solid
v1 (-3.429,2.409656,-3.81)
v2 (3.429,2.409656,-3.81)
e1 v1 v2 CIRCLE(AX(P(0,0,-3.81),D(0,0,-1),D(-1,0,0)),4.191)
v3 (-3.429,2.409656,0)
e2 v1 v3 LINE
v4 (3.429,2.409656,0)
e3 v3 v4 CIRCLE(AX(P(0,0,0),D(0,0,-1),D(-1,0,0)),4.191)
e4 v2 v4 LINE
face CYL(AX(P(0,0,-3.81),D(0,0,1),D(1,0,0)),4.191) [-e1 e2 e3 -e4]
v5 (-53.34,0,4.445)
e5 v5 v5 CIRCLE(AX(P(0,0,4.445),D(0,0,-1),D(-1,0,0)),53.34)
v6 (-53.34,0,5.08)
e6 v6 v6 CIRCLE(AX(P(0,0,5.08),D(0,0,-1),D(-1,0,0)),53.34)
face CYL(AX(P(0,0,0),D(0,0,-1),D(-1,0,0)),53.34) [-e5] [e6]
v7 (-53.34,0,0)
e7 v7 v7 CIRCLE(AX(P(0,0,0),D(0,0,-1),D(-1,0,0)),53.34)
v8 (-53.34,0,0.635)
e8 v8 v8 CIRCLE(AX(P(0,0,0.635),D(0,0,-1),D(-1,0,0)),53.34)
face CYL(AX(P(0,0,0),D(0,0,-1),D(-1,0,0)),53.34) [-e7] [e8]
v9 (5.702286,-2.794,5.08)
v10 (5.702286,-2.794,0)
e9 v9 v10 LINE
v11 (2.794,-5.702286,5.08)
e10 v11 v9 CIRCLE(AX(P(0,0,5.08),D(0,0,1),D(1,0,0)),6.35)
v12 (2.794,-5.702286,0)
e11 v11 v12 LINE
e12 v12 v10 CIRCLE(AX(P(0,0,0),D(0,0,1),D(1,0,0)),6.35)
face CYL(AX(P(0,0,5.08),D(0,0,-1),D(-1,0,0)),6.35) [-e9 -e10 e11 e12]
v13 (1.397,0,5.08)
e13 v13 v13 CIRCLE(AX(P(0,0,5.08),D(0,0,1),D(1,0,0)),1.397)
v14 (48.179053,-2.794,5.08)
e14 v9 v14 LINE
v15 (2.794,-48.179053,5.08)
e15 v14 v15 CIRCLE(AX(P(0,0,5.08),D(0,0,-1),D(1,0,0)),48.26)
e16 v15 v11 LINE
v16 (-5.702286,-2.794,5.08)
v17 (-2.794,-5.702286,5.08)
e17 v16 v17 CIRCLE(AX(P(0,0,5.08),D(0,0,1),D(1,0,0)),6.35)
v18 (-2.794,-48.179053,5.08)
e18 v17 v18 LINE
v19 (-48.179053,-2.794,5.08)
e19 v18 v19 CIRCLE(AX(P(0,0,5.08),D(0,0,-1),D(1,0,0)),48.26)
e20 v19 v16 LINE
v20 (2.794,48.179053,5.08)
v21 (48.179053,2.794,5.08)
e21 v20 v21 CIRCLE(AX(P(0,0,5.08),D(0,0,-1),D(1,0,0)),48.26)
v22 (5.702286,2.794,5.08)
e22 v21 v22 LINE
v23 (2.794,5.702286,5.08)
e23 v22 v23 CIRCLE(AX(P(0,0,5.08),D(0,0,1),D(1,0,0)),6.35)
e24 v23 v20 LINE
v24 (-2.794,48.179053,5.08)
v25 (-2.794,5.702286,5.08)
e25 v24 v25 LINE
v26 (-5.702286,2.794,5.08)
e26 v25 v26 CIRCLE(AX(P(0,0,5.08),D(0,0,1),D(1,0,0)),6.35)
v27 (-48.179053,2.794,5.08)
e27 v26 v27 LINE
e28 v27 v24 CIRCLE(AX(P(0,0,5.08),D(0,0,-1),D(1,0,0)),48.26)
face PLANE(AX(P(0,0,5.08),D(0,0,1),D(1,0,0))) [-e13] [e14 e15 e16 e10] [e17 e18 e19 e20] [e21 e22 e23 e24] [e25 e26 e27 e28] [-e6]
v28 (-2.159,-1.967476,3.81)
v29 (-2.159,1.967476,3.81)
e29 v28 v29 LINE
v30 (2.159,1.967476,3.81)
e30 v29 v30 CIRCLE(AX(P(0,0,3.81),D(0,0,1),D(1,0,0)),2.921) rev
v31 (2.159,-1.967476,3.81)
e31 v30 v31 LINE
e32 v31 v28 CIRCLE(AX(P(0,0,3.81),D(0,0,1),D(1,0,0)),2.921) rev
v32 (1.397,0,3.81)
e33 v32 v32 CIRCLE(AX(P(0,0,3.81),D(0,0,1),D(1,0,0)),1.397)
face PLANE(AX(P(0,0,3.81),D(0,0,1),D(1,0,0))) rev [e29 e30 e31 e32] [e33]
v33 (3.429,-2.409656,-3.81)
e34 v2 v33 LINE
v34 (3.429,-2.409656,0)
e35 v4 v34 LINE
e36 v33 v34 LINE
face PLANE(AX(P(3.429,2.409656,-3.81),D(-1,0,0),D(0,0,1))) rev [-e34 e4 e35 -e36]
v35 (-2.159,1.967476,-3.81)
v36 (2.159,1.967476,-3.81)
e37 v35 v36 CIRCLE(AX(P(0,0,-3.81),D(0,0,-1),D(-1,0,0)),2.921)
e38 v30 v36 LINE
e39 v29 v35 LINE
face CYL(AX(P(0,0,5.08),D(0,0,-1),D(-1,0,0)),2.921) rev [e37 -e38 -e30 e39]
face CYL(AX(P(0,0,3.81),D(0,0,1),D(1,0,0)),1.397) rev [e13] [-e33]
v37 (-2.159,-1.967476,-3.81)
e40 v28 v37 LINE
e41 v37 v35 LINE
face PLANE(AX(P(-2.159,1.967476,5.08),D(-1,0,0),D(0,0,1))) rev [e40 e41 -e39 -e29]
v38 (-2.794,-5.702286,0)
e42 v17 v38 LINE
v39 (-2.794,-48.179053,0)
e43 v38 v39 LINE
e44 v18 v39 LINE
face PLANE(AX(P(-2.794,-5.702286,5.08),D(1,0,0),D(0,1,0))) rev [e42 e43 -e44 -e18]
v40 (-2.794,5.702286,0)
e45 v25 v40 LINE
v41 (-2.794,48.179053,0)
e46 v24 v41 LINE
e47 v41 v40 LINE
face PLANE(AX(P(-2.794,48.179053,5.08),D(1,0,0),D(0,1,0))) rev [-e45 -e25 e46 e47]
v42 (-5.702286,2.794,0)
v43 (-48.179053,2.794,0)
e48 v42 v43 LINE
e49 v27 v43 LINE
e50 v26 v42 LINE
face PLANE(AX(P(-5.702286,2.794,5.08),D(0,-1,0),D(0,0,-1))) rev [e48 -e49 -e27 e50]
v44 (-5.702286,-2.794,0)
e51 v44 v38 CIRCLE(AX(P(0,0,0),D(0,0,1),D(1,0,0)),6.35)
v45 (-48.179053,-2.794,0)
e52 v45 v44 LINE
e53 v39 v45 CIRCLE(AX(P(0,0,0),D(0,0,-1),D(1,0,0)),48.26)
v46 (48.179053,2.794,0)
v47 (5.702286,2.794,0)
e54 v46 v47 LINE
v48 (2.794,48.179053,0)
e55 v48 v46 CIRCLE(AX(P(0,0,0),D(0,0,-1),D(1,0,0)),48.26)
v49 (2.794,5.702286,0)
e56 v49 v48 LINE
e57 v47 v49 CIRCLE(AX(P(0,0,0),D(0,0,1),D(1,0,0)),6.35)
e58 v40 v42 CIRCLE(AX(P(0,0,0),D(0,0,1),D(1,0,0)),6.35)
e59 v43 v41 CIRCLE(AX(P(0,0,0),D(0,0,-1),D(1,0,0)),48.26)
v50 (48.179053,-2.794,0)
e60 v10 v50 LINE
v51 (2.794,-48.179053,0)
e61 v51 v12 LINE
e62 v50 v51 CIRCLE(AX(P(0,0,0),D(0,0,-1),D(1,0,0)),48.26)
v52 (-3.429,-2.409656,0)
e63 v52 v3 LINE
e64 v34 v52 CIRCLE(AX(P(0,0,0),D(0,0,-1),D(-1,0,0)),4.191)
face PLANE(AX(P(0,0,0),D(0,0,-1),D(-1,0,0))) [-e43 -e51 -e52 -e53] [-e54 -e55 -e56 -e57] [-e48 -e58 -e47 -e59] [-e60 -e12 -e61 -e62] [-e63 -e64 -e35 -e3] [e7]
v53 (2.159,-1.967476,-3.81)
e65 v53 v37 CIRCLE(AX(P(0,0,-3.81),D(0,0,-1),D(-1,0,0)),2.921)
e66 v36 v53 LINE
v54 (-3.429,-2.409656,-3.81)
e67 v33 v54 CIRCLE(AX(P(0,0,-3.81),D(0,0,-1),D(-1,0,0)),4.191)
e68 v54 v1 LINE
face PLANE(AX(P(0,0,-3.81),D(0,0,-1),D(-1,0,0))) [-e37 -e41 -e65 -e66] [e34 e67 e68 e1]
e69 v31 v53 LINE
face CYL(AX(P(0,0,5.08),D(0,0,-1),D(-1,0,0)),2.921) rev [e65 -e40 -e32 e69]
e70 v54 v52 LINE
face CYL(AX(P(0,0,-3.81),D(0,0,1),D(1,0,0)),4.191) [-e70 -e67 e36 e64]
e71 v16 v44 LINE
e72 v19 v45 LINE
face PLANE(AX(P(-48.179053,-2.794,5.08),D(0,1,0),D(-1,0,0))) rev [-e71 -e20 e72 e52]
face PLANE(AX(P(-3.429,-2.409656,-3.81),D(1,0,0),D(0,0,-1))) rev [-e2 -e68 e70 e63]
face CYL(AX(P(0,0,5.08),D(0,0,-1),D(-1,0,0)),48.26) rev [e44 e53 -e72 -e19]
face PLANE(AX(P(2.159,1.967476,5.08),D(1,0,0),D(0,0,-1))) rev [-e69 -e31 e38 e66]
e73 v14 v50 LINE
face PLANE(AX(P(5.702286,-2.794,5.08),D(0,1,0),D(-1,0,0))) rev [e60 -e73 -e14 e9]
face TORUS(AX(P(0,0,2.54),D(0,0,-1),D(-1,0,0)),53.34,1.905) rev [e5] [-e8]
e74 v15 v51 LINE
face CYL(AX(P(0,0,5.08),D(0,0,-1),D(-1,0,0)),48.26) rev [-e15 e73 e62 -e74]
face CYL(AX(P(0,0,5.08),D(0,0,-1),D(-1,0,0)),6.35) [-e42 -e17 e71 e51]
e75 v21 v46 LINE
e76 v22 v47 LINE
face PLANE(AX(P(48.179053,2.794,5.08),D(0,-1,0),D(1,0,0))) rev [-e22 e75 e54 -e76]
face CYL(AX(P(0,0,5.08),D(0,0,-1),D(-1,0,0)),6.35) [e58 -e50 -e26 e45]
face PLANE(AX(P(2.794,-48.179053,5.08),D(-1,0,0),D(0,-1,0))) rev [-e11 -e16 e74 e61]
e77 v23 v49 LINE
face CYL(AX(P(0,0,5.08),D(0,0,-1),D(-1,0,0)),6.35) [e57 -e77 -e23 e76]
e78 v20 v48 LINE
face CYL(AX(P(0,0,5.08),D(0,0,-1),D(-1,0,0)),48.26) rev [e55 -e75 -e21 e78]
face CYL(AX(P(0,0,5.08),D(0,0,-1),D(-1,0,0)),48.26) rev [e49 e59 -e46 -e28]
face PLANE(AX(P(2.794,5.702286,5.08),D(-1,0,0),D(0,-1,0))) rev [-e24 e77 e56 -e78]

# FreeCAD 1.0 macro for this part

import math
import FreeCAD as App
import Part
import Sketcher
from FreeCAD import Vector
Q = App.Units.Quantity

doc = App.newDocument("Part")
params = doc.addObject("Spreadsheet::Sheet", "Params")
for row, (alias, value) in enumerate([
    ("sketch1_width", "2.1 in"),
    ("sketch1_height", "0.2 in"),
    ("sketch1_radius", "0.075 in"),
    ("revolution_angle", "360 deg"),
    ("sketch2_radius", "1.9 in"),
    ("sketch2_radius2", "0.25 in"),
    ("sketch3_radius", "0.115 in"),
    ("sketch4_radius", "0.165 in"),
    ("sketch4_radius2", "0.115 in"),
    ("pad1_length", "0.15 in"),
    ("sketch5_diameter", "0.3 in"),
    ("sketch5_diameter2", "0.11 in"),
    ("pad2_length", "0.05 in"),
], start=1):
    params.set(f"A{row}", alias)
    params.set(f"B{row}", "=" + value)
    params.setAlias(f"B{row}", alias)

body = doc.addObject("PartDesign::Body", "Body")

# Sketch on XZ plane
sketch1 = doc.addObject("Sketcher::SketchObject", "Sketch")
body.addObject(sketch1)
sketch1.AttachmentSupport = (doc.XZ_Plane, [""])
sketch1.MapMode = "FlatFace"
sketch1.addGeometry([
    Part.LineSegment(Vector(-53.3, 0, 0), Vector(-53.3, 0.6, 0)),  # 0
    Part.ArcOfCircle(Part.Circle(Vector(-53.3, 2.5, 0), Vector(0, 0, 1), 1.9), math.radians(-90), math.radians(90)),  # 1
    Part.LineSegment(Vector(-53.3, 4.4, 0), Vector(-53.3, 5.1, 0)),  # 2
    Part.LineSegment(Vector(-53.3, 5.1, 0), Vector(0, 5.1, 0)),  # 3
    Part.LineSegment(Vector(0, 5.1, 0), Vector(0, 0, 0)),  # 4
    Part.LineSegment(Vector(0, 0, 0), Vector(-53.3, 0, 0)),  # 5
], False)
sketch1.addConstraint([
    Sketcher.Constraint("Coincident", 0, 2, 1, 1),
    Sketcher.Constraint("Coincident", 1, 2, 2, 1),
    Sketcher.Constraint("Coincident", 2, 2, 3, 1),
    Sketcher.Constraint("Coincident", 3, 2, 4, 1),
    Sketcher.Constraint("Coincident", 4, 2, 5, 1),
    Sketcher.Constraint("Coincident", 5, 2, 0, 1),
    Sketcher.Constraint("Vertical", 0),
    Sketcher.Constraint("Vertical", 2),
    Sketcher.Constraint("Horizontal", 3),
    Sketcher.Constraint("Vertical", 4),
    Sketcher.Constraint("Horizontal", 5),
    Sketcher.Constraint("Coincident", 4, 2, -1, 1),
    Sketcher.Constraint("Vertical", 1, 3, 0, 2),
    Sketcher.Constraint("Vertical", 0, 2, 1, 2),
    Sketcher.Constraint("Equal", 0, 2),
    Sketcher.Constraint("DistanceX", 3, 1, 3, 2, Q("2.1 in")),
    Sketcher.Constraint("DistanceY", 4, 2, 4, 1, Q("0.2 in")),
    Sketcher.Constraint("Radius", 1, Q("0.075 in")),
])
sketch1.setExpression("Constraints[15]", "Params.sketch1_width")
sketch1.setExpression("Constraints[16]", "Params.sketch1_height")
sketch1.setExpression("Constraints[17]", "Params.sketch1_radius")
revolution = doc.addObject("PartDesign::Revolution", "Revolution")
body.addObject(revolution)
revolution.Profile = sketch1
revolution.ReferenceAxis = (sketch1, ["V_Axis"])
revolution.setExpression("Angle", "Params.revolution_angle")

# Sketch on XY plane
sketch2 = doc.addObject("Sketcher::SketchObject", "Sketch001")
body.addObject(sketch2)
sketch2.AttachmentSupport = (doc.XY_Plane, [""])
sketch2.MapMode = "FlatFace"
sketch2.addGeometry([
    Part.LineSegment(Vector(-2.8, 48.2, 0), Vector(-2.8, 5.7, 0)),  # 0
    Part.ArcOfCircle(Part.Circle(Vector(0, 0, 0), Vector(0, 0, 1), 6.3), math.radians(116), math.radians(154)),  # 1
    Part.LineSegment(Vector(-5.7, 2.8, 0), Vector(-48.2, 2.8, 0)),  # 2
    Part.ArcOfCircle(Part.Circle(Vector(0, 0, 0), Vector(0, 0, 1), 48.3), math.radians(93), math.radians(177)),  # 3
    Part.LineSegment(Vector(-2.8, -5.7, 0), Vector(-2.8, -48.2, 0)),  # 4
    Part.ArcOfCircle(Part.Circle(Vector(0, 0, 0), Vector(0, 0, 1), 48.3), math.radians(-177), math.radians(-93)),  # 5
    Part.LineSegment(Vector(-48.2, -2.8, 0), Vector(-5.7, -2.8, 0)),  # 6
    Part.ArcOfCircle(Part.Circle(Vector(0, 0, 0), Vector(0, 0, 1), 6.3), math.radians(-154), math.radians(-116)),  # 7
    Part.LineSegment(Vector(5.7, -2.8, 0), Vector(48.2, -2.8, 0)),  # 8
    Part.ArcOfCircle(Part.Circle(Vector(0, 0, 0), Vector(0, 0, 1), 48.3), math.radians(-87), math.radians(-3)),  # 9
    Part.LineSegment(Vector(2.8, -48.2, 0), Vector(2.8, -5.7, 0)),  # 10
    Part.ArcOfCircle(Part.Circle(Vector(0, 0, 0), Vector(0, 0, 1), 6.3), math.radians(-64), math.radians(-26)),  # 11
    Part.LineSegment(Vector(2.8, 5.7, 0), Vector(2.8, 48.2, 0)),  # 12
    Part.ArcOfCircle(Part.Circle(Vector(0, 0, 0), Vector(0, 0, 1), 48.3), math.radians(3), math.radians(87)),  # 13
    Part.LineSegment(Vector(48.2, 2.8, 0), Vector(5.7, 2.8, 0)),  # 14
    Part.ArcOfCircle(Part.Circle(Vector(0, 0, 0), Vector(0, 0, 1), 6.3), math.radians(26), math.radians(64)),  # 15
], False)
sketch2.addConstraint([
    Sketcher.Constraint("Coincident", 0, 2, 1, 1),
    Sketcher.Constraint("Coincident", 1, 2, 2, 1),
    Sketcher.Constraint("Coincident", 2, 2, 3, 2),
    Sketcher.Constraint("Coincident", 3, 1, 0, 1),
    Sketcher.Constraint("Coincident", 4, 2, 5, 2),
    Sketcher.Constraint("Coincident", 5, 1, 6, 1),
    Sketcher.Constraint("Coincident", 6, 2, 7, 1),
    Sketcher.Constraint("Coincident", 7, 2, 4, 1),
    Sketcher.Constraint("Coincident", 8, 2, 9, 2),
    Sketcher.Constraint("Coincident", 9, 1, 10, 1),
    Sketcher.Constraint("Coincident", 10, 2, 11, 1),
    Sketcher.Constraint("Coincident", 11, 2, 8, 1),
    Sketcher.Constraint("Coincident", 12, 2, 13, 2),
    Sketcher.Constraint("Coincident", 13, 1, 14, 1),
    Sketcher.Constraint("Coincident", 14, 2, 15, 1),
    Sketcher.Constraint("Coincident", 15, 2, 12, 1),
    Sketcher.Constraint("Vertical", 0),
    Sketcher.Constraint("Horizontal", 2),
    Sketcher.Constraint("Vertical", 4),
    Sketcher.Constraint("Horizontal", 6),
    Sketcher.Constraint("Horizontal", 8),
    Sketcher.Constraint("Vertical", 10),
    Sketcher.Constraint("Vertical", 12),
    Sketcher.Constraint("Horizontal", 14),
    Sketcher.Constraint("Coincident", 1, 3, -1, 1),
    Sketcher.Constraint("Coincident", 3, 3, -1, 1),
    Sketcher.Constraint("Coincident", 5, 3, -1, 1),
    Sketcher.Constraint("Coincident", 7, 3, -1, 1),
    Sketcher.Constraint("Coincident", 9, 3, -1, 1),
    Sketcher.Constraint("Coincident", 11, 3, -1, 1),
    Sketcher.Constraint("Coincident", 13, 3, -1, 1),
    Sketcher.Constraint("Coincident", 15, 3, -1, 1),
    Sketcher.Constraint("Equal", 3, 5),
    Sketcher.Constraint("Equal", 1, 7),
    Sketcher.Constraint("Equal", 5, 9),
    Sketcher.Constraint("Equal", 7, 11),
    Sketcher.Constraint("Equal", 9, 13),
    Sketcher.Constraint("Equal", 11, 15),
    Sketcher.Constraint("Horizontal", 6, 2, 8, 2),
    Sketcher.Constraint("Horizontal", 4, 2, 9, 1),
    Sketcher.Constraint("Horizontal", 3, 1, 12, 2),
    Sketcher.Constraint("Horizontal", 2, 2, 13, 1),
    Sketcher.Constraint("Vertical", 3, 1, 4, 2),
    Sketcher.Constraint("Vertical", 2, 2, 5, 1),
    Sketcher.Constraint("Equal", 14, 0),
    Sketcher.Constraint("Radius", 3, Q("1.9 in")),
    Sketcher.Constraint("Radius", 1, Q("0.25 in")),
    Sketcher.Constraint("DistanceX", 0, 2, -1, 1, Q("0.11 in")),
])
sketch2.setExpression("Constraints[45]", "Params.sketch2_radius")
sketch2.setExpression("Constraints[46]", "Params.sketch2_radius2")
pocket1 = doc.addObject("PartDesign::Pocket", "Pocket")
body.addObject(pocket1)
pocket1.Profile = sketch2
pocket1.Type = "ThroughAll"
pocket1.Reversed = True

# Sketch on XY plane
sketch3 = doc.addObject("Sketcher::SketchObject", "Sketch002")
body.addObject(sketch3)
sketch3.AttachmentSupport = (doc.XY_Plane, [""])
sketch3.MapMode = "FlatFace"
sketch3.addGeometry([
    Part.LineSegment(Vector(2.2, 2, 0), Vector(2.2, -2, 0)),
    Part.ArcOfCircle(Part.Circle(Vector(0, 0, 0), Vector(0, 0, 1), 2.9), math.radians(-138), math.radians(-42)),
    Part.LineSegment(Vector(-2.2, -2, 0), Vector(-2.2, 2, 0)),
    Part.ArcOfCircle(Part.Circle(Vector(0, 0, 0), Vector(0, 0, 1), 2.9), math.radians(42), math.radians(138)),
], False)
sketch3.addConstraint([
    Sketcher.Constraint("Coincident", 0, 2, 1, 2),
    Sketcher.Constraint("Coincident", 1, 1, 2, 1),
    Sketcher.Constraint("Coincident", 2, 2, 3, 2),
    Sketcher.Constraint("Coincident", 3, 1, 0, 1),
    Sketcher.Constraint("Vertical", 0),
    Sketcher.Constraint("Vertical", 2),
    Sketcher.Constraint("Coincident", 1, 3, -1, 1),
    Sketcher.Constraint("Coincident", 3, 3, -1, 1),
    Sketcher.Constraint("Equal", 1, 3),
    Sketcher.Constraint("Horizontal", 0, 2, 1, 1),
    Sketcher.Constraint("Radius", 1, Q("0.115 in")),
    Sketcher.Constraint("DistanceX", 1, 1, 0, 2, Q("0.17 in")),
])
sketch3.setExpression("Constraints[10]", "Params.sketch3_radius")
pocket2 = doc.addObject("PartDesign::Pocket", "Pocket001")
body.addObject(pocket2)
pocket2.Profile = sketch3
pocket2.Type = "ThroughAll"
pocket2.Reversed = True

# Sketch on XY plane
sketch4 = doc.addObject("Sketcher::SketchObject", "Sketch003")
body.addObject(sketch4)
sketch4.AttachmentSupport = (doc.XY_Plane, [""])
sketch4.MapMode = "FlatFace"
sketch4.AttachmentOffset = App.Placement(Vector(0, 0, -0.15 * 25.4), App.Rotation())
sketch4.addGeometry([
    Part.LineSegment(Vector(-3.4, -2.4, 0), Vector(-3.4, 2.4, 0)),  # 0
    Part.ArcOfCircle(Part.Circle(Vector(0, 0, 0), Vector(0, 0, 1), 4.2), math.radians(35), math.radians(145)),  # 1
    Part.LineSegment(Vector(3.4, 2.4, 0), Vector(3.4, -2.4, 0)),  # 2
    Part.ArcOfCircle(Part.Circle(Vector(0, 0, 0), Vector(0, 0, 1), 4.2), math.radians(-145), math.radians(-35)),  # 3
    Part.LineSegment(Vector(-2.2, 2, 0), Vector(-2.2, -2, 0)),  # 4
    Part.ArcOfCircle(Part.Circle(Vector(0, 0, 0), Vector(0, 0, 1), 2.9), math.radians(-138), math.radians(-42)),  # 5
    Part.LineSegment(Vector(2.2, -2, 0), Vector(2.2, 2, 0)),  # 6
    Part.ArcOfCircle(Part.Circle(Vector(0, 0, 0), Vector(0, 0, 1), 2.9), math.radians(42), math.radians(138)),  # 7
], False)
sketch4.addConstraint([
    Sketcher.Constraint("Coincident", 0, 2, 1, 2),
    Sketcher.Constraint("Coincident", 1, 1, 2, 1),
    Sketcher.Constraint("Coincident", 2, 2, 3, 2),
    Sketcher.Constraint("Coincident", 3, 1, 0, 1),
    Sketcher.Constraint("Coincident", 4, 2, 5, 1),
    Sketcher.Constraint("Coincident", 5, 2, 6, 1),
    Sketcher.Constraint("Coincident", 6, 2, 7, 1),
    Sketcher.Constraint("Coincident", 7, 2, 4, 1),
    Sketcher.Constraint("Vertical", 0),
    Sketcher.Constraint("Vertical", 2),
    Sketcher.Constraint("Vertical", 4),
    Sketcher.Constraint("Vertical", 6),
    Sketcher.Constraint("Coincident", 1, 3, -1, 1),
    Sketcher.Constraint("Coincident", 3, 3, -1, 1),
    Sketcher.Constraint("Coincident", 5, 3, -1, 1),
    Sketcher.Constraint("Coincident", 7, 3, -1, 1),
    Sketcher.Constraint("Equal", 1, 3),
    Sketcher.Constraint("Equal", 5, 7),
    Sketcher.Constraint("Horizontal", 0, 2, 1, 1),
    Sketcher.Constraint("Horizontal", 4, 2, 5, 2),
    Sketcher.Constraint("Radius", 1, Q("0.165 in")),
    Sketcher.Constraint("Radius", 5, Q("0.115 in")),
    Sketcher.Constraint("DistanceX", 0, 2, 1, 1, Q("0.27 in")),
    Sketcher.Constraint("DistanceX", 3, 1, 4, 2, Q("0.05 in")),
])
sketch4.setExpression("Constraints[20]", "Params.sketch4_radius")
sketch4.setExpression("Constraints[21]", "Params.sketch4_radius2")
pad1 = doc.addObject("PartDesign::Pad", "Pad")
body.addObject(pad1)
pad1.Profile = sketch4
pad1.setExpression("Length", "Params.pad1_length")

# Sketch on XY plane
sketch5 = doc.addObject("Sketcher::SketchObject", "Sketch004")
body.addObject(sketch5)
sketch5.AttachmentSupport = (doc.XY_Plane, [""])
sketch5.MapMode = "FlatFace"
sketch5.AttachmentOffset = App.Placement(Vector(0, 0, 0.2 * 25.4), App.Rotation())
sketch5.addGeometry([
    Part.Circle(Vector(0, 0, 0), Vector(0, 0, 1), 3.8),
    Part.Circle(Vector(0, 0, 0), Vector(0, 0, 1), 1.4),
], False)
sketch5.addConstraint([
    Sketcher.Constraint("Coincident", 0, 3, -1, 1),
    Sketcher.Constraint("Coincident", 1, 3, -1, 1),
    Sketcher.Constraint("Diameter", 0, Q("0.3 in")),
    Sketcher.Constraint("Diameter", 1, Q("0.11 in")),
])
sketch5.setExpression("Constraints[2]", "Params.sketch5_diameter")
sketch5.setExpression("Constraints[3]", "Params.sketch5_diameter2")
pad2 = doc.addObject("PartDesign::Pad", "Pad001")
body.addObject(pad2)
pad2.Profile = sketch5
pad2.setExpression("Length", "Params.pad2_length")
pad2.Reversed = True

doc.recompute()
